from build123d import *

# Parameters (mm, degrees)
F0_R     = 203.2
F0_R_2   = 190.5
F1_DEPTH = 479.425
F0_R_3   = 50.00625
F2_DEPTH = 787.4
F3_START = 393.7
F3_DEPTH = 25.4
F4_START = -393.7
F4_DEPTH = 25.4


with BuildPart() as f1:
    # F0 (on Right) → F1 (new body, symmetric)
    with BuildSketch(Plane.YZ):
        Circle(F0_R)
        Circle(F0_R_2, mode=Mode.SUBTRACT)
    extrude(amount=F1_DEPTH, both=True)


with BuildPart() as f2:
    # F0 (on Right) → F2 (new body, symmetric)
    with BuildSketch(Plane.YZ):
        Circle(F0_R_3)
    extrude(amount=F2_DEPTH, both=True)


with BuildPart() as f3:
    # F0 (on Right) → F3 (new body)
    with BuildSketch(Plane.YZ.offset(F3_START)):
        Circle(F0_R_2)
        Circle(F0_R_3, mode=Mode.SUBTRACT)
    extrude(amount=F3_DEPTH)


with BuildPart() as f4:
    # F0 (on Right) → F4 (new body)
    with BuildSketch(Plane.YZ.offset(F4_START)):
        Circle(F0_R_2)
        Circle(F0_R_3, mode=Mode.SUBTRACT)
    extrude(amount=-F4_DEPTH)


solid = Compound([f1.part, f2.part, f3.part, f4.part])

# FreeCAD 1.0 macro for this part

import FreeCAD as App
import Part
import Sketcher
Q = App.Units.Quantity

doc = App.newDocument("Part")
body = doc.addObject("PartDesign::Body", "Body")

# Sketch on YZ plane
sketch1 = body.newObject("Sketcher::SketchObject", "Sketch")
sketch1.AttachmentSupport = (doc.getObject("YZ_Plane"), [""])
sketch1.MapMode = "FlatFace"
sketch1.addGeometry([
    Part.Circle(App.Vector(0, 0, 0), App.Vector(0, 0, 1), 203),
    Part.Circle(App.Vector(0, 0, 0), App.Vector(0, 0, 1), 190),
], False)
sketch1.addConstraint([
    Sketcher.Constraint("Coincident", 0, 3, -1, 1),
    Sketcher.Constraint("Coincident", 1, 3, -1, 1),
    Sketcher.Constraint("Diameter", 0, Q("16 in")),
    Sketcher.Constraint("Diameter", 1, Q("15 in")),
])
pad1 = body.newObject("PartDesign::Pad", "Pad")
pad1.Profile = sketch1
pad1.Length = Q("37.75 in")
pad1.Midplane = True
body2 = doc.addObject("PartDesign::Body", "Body001")

# Sketch on YZ plane
sketch2 = body2.newObject("Sketcher::SketchObject", "Sketch001")
sketch2.AttachmentSupport = (doc.getObject("YZ_Plane001"), [""])
sketch2.MapMode = "FlatFace"
sketch2.addGeometry(Part.Circle(App.Vector(0, 0, 0), App.Vector(0, 0, 1), 50), False)
sketch2.addConstraint([
    Sketcher.Constraint("Coincident", 0, 3, -1, 1),
    Sketcher.Constraint("Diameter", 0, Q("3.9375 in")),
])
pad2 = body2.newObject("PartDesign::Pad", "Pad001")
pad2.Profile = sketch2
pad2.Length = Q("62 in")
pad2.Midplane = True
body3 = doc.addObject("PartDesign::Body", "Body002")

# Sketch on YZ plane
sketch3 = body3.newObject("Sketcher::SketchObject", "Sketch002")
sketch3.AttachmentSupport = (doc.getObject("YZ_Plane002"), [""])
sketch3.MapMode = "FlatFace"
sketch3.AttachmentOffset = App.Placement(App.Vector(0, 0, 15.5 * 25.4), App.Rotation())
sketch3.addGeometry([
    Part.Circle(App.Vector(0, 0, 0), App.Vector(0, 0, 1), 190),
    Part.Circle(App.Vector(0, 0, 0), App.Vector(0, 0, 1), 50),
], False)
sketch3.addConstraint([
    Sketcher.Constraint("Coincident", 0, 3, -1, 1),
    Sketcher.Constraint("Coincident", 1, 3, -1, 1),
    Sketcher.Constraint("Diameter", 0, Q("15 in")),
    Sketcher.Constraint("Diameter", 1, Q("3.9375 in")),
])
pad3 = body3.newObject("PartDesign::Pad", "Pad002")
pad3.Profile = sketch3
pad3.Length = Q("1 in")
body4 = doc.addObject("PartDesign::Body", "Body003")

# Sketch on YZ plane
sketch4 = body4.newObject("Sketcher::SketchObject", "Sketch003")
sketch4.AttachmentSupport = (doc.getObject("YZ_Plane003"), [""])
sketch4.MapMode = "FlatFace"
sketch4.AttachmentOffset = App.Placement(App.Vector(0, 0, -15.5 * 25.4), App.Rotation())
sketch4.addGeometry([
    Part.Circle(App.Vector(0, 0, 0), App.Vector(0, 0, 1), 190),
    Part.Circle(App.Vector(0, 0, 0), App.Vector(0, 0, 1), 50),
], False)
sketch4.addConstraint([
    Sketcher.Constraint("Coincident", 0, 3, -1, 1),
    Sketcher.Constraint("Coincident", 1, 3, -1, 1),
    Sketcher.Constraint("Diameter", 0, Q("15 in")),
    Sketcher.Constraint("Diameter", 1, Q("3.9375 in")),
])
pad4 = body4.newObject("PartDesign::Pad", "Pad003")
pad4.Profile = sketch4
pad4.Length = Q("1 in")
pad4.Reversed = True

doc.recompute()
